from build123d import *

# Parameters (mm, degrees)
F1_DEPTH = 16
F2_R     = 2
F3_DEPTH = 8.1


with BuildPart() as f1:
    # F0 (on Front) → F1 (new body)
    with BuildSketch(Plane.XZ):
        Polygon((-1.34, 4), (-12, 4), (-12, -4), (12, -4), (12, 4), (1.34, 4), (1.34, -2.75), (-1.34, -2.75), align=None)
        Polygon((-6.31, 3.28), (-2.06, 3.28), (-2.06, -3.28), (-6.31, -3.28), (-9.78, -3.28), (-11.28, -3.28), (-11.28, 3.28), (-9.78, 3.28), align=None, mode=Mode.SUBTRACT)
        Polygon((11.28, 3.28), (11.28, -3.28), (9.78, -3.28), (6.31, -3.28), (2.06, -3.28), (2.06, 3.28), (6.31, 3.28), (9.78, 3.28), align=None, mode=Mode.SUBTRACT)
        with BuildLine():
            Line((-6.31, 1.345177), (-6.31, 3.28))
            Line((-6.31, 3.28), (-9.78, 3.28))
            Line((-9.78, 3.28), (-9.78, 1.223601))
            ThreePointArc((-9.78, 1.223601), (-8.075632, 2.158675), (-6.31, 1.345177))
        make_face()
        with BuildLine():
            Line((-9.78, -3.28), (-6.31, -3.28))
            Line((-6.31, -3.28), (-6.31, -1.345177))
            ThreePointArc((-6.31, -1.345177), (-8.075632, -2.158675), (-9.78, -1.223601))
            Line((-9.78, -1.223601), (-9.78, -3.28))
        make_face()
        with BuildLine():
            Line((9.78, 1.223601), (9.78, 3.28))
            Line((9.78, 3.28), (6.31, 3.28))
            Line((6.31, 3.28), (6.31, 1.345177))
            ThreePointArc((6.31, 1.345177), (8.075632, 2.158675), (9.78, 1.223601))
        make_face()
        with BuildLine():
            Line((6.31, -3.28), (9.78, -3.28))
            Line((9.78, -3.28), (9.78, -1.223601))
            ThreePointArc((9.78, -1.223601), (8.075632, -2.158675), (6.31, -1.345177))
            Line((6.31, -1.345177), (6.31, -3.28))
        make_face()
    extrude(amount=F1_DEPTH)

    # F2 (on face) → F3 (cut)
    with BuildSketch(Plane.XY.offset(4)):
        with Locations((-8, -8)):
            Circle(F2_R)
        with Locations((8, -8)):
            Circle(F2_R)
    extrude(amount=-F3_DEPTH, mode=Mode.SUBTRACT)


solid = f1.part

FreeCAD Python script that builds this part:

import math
import FreeCAD as App
import Part
import Sketcher
from FreeCAD import Vector

doc = App.newDocument("Part")
body = doc.addObject("PartDesign::Body", "Body")

# Sketch on XZ plane
sketch1 = body.newObject("Sketcher::SketchObject", "Sketch")
sketch1.AttachmentSupport = (doc.getObject("XZ_Plane"), [""])
sketch1.MapMode = "FlatFace"
sketch1.addGeometry(Part.LineSegment(Vector(-1.34, 4, 0), Vector(-12, 4, 0)), False)
sketch1.addGeometry(Part.LineSegment(Vector(-12, 4, 0), Vector(-12, -4, 0)), False)
sketch1.addGeometry(Part.LineSegment(Vector(-12, -4, 0), Vector(12, -4, 0)), False)
sketch1.addGeometry(Part.LineSegment(Vector(12, -4, 0), Vector(12, 4, 0)), False)
sketch1.addGeometry(Part.LineSegment(Vector(12, 4, 0), Vector(1.34, 4, 0)), False)
sketch1.addGeometry(Part.LineSegment(Vector(1.34, 4, 0), Vector(1.34, -2.75, 0)), False)
sketch1.addGeometry(Part.LineSegment(Vector(1.34, -2.75, 0), Vector(-1.34, -2.75, 0)), False)
sketch1.addGeometry(Part.LineSegment(Vector(-1.34, -2.75, 0), Vector(-1.34, 4, 0)), False)
sketch1.addGeometry(Part.LineSegment(Vector(-11.28, 3.28, 0), Vector(-9.78, 3.28, 0)), False)
sketch1.addGeometry(Part.LineSegment(Vector(-9.78, 3.28, 0), Vector(-9.78, 1.223601, 0)), False)
sketch1.addGeometry(Part.ArcOfCircle(Part.Circle(Vector(-8, -0.000001, 0), Vector(0, 0, 1), 2.160001), math.radians(38.518514), math.radians(145.49471)), False)
sketch1.addGeometry(Part.LineSegment(Vector(-6.31, 1.345177, 0), Vector(-6.31, 3.28, 0)), False)
sketch1.addGeometry(Part.LineSegment(Vector(-6.31, 3.28, 0), Vector(-2.06, 3.28, 0)), False)
sketch1.addGeometry(Part.LineSegment(Vector(-2.06, 3.28, 0), Vector(-2.06, -3.28, 0)), False)
sketch1.addGeometry(Part.LineSegment(Vector(-2.06, -3.28, 0), Vector(-6.31, -3.28, 0)), False)
sketch1.addGeometry(Part.LineSegment(Vector(-6.31, -3.28, 0), Vector(-6.31, -1.345177, 0)), False)
sketch1.addGeometry(Part.ArcOfCircle(Part.Circle(Vector(-8, 0.000001, 0), Vector(0, 0, 1), 2.160001), math.radians(-145.49471), math.radians(-38.518514)), False)
sketch1.addGeometry(Part.LineSegment(Vector(-9.78, -1.223601, 0), Vector(-9.78, -3.28, 0)), False)
sketch1.addGeometry(Part.LineSegment(Vector(-9.78, -3.28, 0), Vector(-11.28, -3.28, 0)), False)
sketch1.addGeometry(Part.LineSegment(Vector(-11.28, -3.28, 0), Vector(-11.28, 3.28, 0)), False)
sketch1.addGeometry(Part.LineSegment(Vector(2.06, 3.28, 0), Vector(6.31, 3.28, 0)), False)
sketch1.addGeometry(Part.LineSegment(Vector(6.31, 3.28, 0), Vector(6.31, 1.345177, 0)), False)
sketch1.addGeometry(Part.ArcOfCircle(Part.Circle(Vector(8, -0.000001, 0), Vector(0, 0, 1), 2.160001), math.radians(34.50529), math.radians(141.481486)), False)
sketch1.addGeometry(Part.LineSegment(Vector(9.78, 1.223601, 0), Vector(9.78, 3.28, 0)), False)
sketch1.addGeometry(Part.LineSegment(Vector(9.78, 3.28, 0), Vector(11.28, 3.28, 0)), False)
sketch1.addGeometry(Part.LineSegment(Vector(11.28, 3.28, 0), Vector(11.28, -3.28, 0)), False)
sketch1.addGeometry(Part.LineSegment(Vector(11.28, -3.28, 0), Vector(9.78, -3.28, 0)), False)
sketch1.addGeometry(Part.LineSegment(Vector(9.78, -3.28, 0), Vector(9.78, -1.223601, 0)), False)
sketch1.addGeometry(Part.ArcOfCircle(Part.Circle(Vector(8, 0.000001, 0), Vector(0, 0, 1), 2.160001), math.radians(-141.481486), math.radians(-34.50529)), False)
sketch1.addGeometry(Part.LineSegment(Vector(6.31, -1.345177, 0), Vector(6.31, -3.28, 0)), False)
sketch1.addGeometry(Part.LineSegment(Vector(6.31, -3.28, 0), Vector(2.06, -3.28, 0)), False)
sketch1.addGeometry(Part.LineSegment(Vector(2.06, -3.28, 0), Vector(2.06, 3.28, 0)), False)
sketch1.addConstraint(Sketcher.Constraint("Coincident", 0, 2, 1, 1))
sketch1.addConstraint(Sketcher.Constraint("Coincident", 1, 2, 2, 1))
sketch1.addConstraint(Sketcher.Constraint("Coincident", 2, 2, 3, 1))
sketch1.addConstraint(Sketcher.Constraint("Coincident", 3, 2, 4, 1))
sketch1.addConstraint(Sketcher.Constraint("Coincident", 4, 2, 5, 1))
sketch1.addConstraint(Sketcher.Constraint("Coincident", 5, 2, 6, 1))
sketch1.addConstraint(Sketcher.Constraint("Coincident", 6, 2, 7, 1))
sketch1.addConstraint(Sketcher.Constraint("Coincident", 7, 2, 0, 1))
sketch1.addConstraint(Sketcher.Constraint("Coincident", 8, 2, 9, 1))
sketch1.addConstraint(Sketcher.Constraint("Coincident", 9, 2, 10, 2))
sketch1.addConstraint(Sketcher.Constraint("Coincident", 10, 1, 11, 1))
sketch1.addConstraint(Sketcher.Constraint("Coincident", 11, 2, 12, 1))
sketch1.addConstraint(Sketcher.Constraint("Coincident", 12, 2, 13, 1))
sketch1.addConstraint(Sketcher.Constraint("Coincident", 13, 2, 14, 1))
sketch1.addConstraint(Sketcher.Constraint("Coincident", 14, 2, 15, 1))
sketch1.addConstraint(Sketcher.Constraint("Coincident", 15, 2, 16, 2))
sketch1.addConstraint(Sketcher.Constraint("Coincident", 16, 1, 17, 1))
sketch1.addConstraint(Sketcher.Constraint("Coincident", 17, 2, 18, 1))
sketch1.addConstraint(Sketcher.Constraint("Coincident", 18, 2, 19, 1))
sketch1.addConstraint(Sketcher.Constraint("Coincident", 19, 2, 8, 1))
sketch1.addConstraint(Sketcher.Constraint("Coincident", 20, 2, 21, 1))
sketch1.addConstraint(Sketcher.Constraint("Coincident", 21, 2, 22, 2))
sketch1.addConstraint(Sketcher.Constraint("Coincident", 22, 1, 23, 1))
sketch1.addConstraint(Sketcher.Constraint("Coincident", 23, 2, 24, 1))
sketch1.addConstraint(Sketcher.Constraint("Coincident", 24, 2, 25, 1))
sketch1.addConstraint(Sketcher.Constraint("Coincident", 25, 2, 26, 1))
sketch1.addConstraint(Sketcher.Constraint("Coincident", 26, 2, 27, 1))
sketch1.addConstraint(Sketcher.Constraint("Coincident", 27, 2, 28, 2))
sketch1.addConstraint(Sketcher.Constraint("Coincident", 28, 1, 29, 1))
sketch1.addConstraint(Sketcher.Constraint("Coincident", 29, 2, 30, 1))
sketch1.addConstraint(Sketcher.Constraint("Coincident", 30, 2, 31, 1))
sketch1.addConstraint(Sketcher.Constraint("Coincident", 31, 2, 20, 1))
sketch1.addConstraint(Sketcher.Constraint("Horizontal", 0))
sketch1.addConstraint(Sketcher.Constraint("Vertical", 1))
sketch1.addConstraint(Sketcher.Constraint("Horizontal", 2))
sketch1.addConstraint(Sketcher.Constraint("Vertical", 3))
sketch1.addConstraint(Sketcher.Constraint("Horizontal", 4))
sketch1.addConstraint(Sketcher.Constraint("Vertical", 5))
sketch1.addConstraint(Sketcher.Constraint("Horizontal", 6))
sketch1.addConstraint(Sketcher.Constraint("Vertical", 7))
sketch1.addConstraint(Sketcher.Constraint("Horizontal", 8))
sketch1.addConstraint(Sketcher.Constraint("Vertical", 9))
sketch1.addConstraint(Sketcher.Constraint("Vertical", 11))
sketch1.addConstraint(Sketcher.Constraint("Horizontal", 12))
sketch1.addConstraint(Sketcher.Constraint("Vertical", 13))
sketch1.addConstraint(Sketcher.Constraint("Horizontal", 14))
sketch1.addConstraint(Sketcher.Constraint("Vertical", 15))
sketch1.addConstraint(Sketcher.Constraint("Vertical", 17))
sketch1.addConstraint(Sketcher.Constraint("Horizontal", 18))
sketch1.addConstraint(Sketcher.Constraint("Vertical", 19))
sketch1.addConstraint(Sketcher.Constraint("Horizontal", 20))
sketch1.addConstraint(Sketcher.Constraint("Vertical", 21))
sketch1.addConstraint(Sketcher.Constraint("Vertical", 23))
sketch1.addConstraint(Sketcher.Constraint("Horizontal", 24))
sketch1.addConstraint(Sketcher.Constraint("Vertical", 25))
sketch1.addConstraint(Sketcher.Constraint("Horizontal", 26))
sketch1.addConstraint(Sketcher.Constraint("Vertical", 27))
sketch1.addConstraint(Sketcher.Constraint("Vertical", 29))
sketch1.addConstraint(Sketcher.Constraint("Horizontal", 30))
sketch1.addConstraint(Sketcher.Constraint("Vertical", 31))
sketch1.addConstraint(Sketcher.Constraint("Coincident", 16, 3, 10, 3))
sketch1.addConstraint(Sketcher.Constraint("Coincident", 28, 3, 22, 3))
sketch1.addConstraint(Sketcher.Constraint("Equal", 10, 16))
sketch1.addConstraint(Sketcher.Constraint("Equal", 16, 22))
sketch1.addConstraint(Sketcher.Constraint("Equal", 22, 28))
sketch1.addConstraint(Sketcher.Constraint("Symmetric", 10, 3, 22, 3, -1, 1))
sketch1.addConstraint(Sketcher.Constraint("Symmetric", 0, 2, 2, 2, -1, 1))
sketch1.addConstraint(Sketcher.Constraint("Symmetric", 14, 2, 20, 2, -1, 1))
sketch1.addConstraint(Sketcher.Constraint("Symmetric", 17, 2, 23, 2, -1, 1))
sketch1.addConstraint(Sketcher.Constraint("Symmetric", 19, 2, 25, 2, -1, 1))
sketch1.addConstraint(Sketcher.Constraint("Symmetric", 11, 2, 29, 2, -1, 1))
sketch1.addConstraint(Sketcher.Constraint("Symmetric", 4, 2, 7, 2, -2))
sketch1.addConstraint(Sketcher.Constraint("Symmetric", 11, 2, 20, 2, -2))
sketch1.addConstraint(Sketcher.Constraint("Symmetric", 9, 2, 22, 1, -2))
sketch1.addConstraint(Sketcher.Constraint("Symmetric", 17, 2, 26, 2, -2))
sketch1.addConstraint(Sketcher.Constraint("Horizontal", 8, 2, 11, 2))
sketch1.addConstraint(Sketcher.Constraint("Equal", 14, 20))
sketch1.addConstraint(Sketcher.Constraint("DistanceX", 2, 1, 2, 2, 24.0))
sketch1.addConstraint(Sketcher.Constraint("DistanceY", 1, 2, 1, 1, 8.0))
sketch1.addConstraint(Sketcher.Constraint("Radius", 10, 2.160001))
sketch1.addConstraint(Sketcher.Constraint("DistanceX", 8, 1, 8, 2, 1.5))
sketch1.addConstraint(Sketcher.Constraint("DistanceX", 10, 3, -1, 1, 8.0))
sketch1.addConstraint(Sketcher.Constraint("DistanceX", 0, 2, 0, 1, 10.66))
sketch1.addConstraint(Sketcher.Constraint("DistanceX", 12, 1, 12, 2, 4.25))
sketch1.addConstraint(Sketcher.Constraint("DistanceY", 5, 2, 5, 1, 6.75))
sketch1.addConstraint(Sketcher.Constraint("DistanceY", 13, 2, 13, 1, 6.56))
sketch1.addConstraint(Sketcher.Constraint("DistanceX", 12, 2, 4, 2, 3.4))
sketch1.addConstraint(Sketcher.Constraint("DistanceX", 8, 2, -1, 1, 9.78))
pad1 = body.newObject("PartDesign::Pad", "Pad")
pad1.Profile = sketch1
pad1.Length = 16

# Sketch on XY plane
sketch2 = body.newObject("Sketcher::SketchObject", "Sketch001")
sketch2.AttachmentSupport = (doc.getObject("XY_Plane"), [""])
sketch2.MapMode = "FlatFace"
sketch2.AttachmentOffset = App.Placement(Vector(0, 0, 4), App.Rotation())
sketch2.addGeometry(Part.Circle(Vector(-8, -8, 0), Vector(0, 0, 1), 2), False)
sketch2.addGeometry(Part.Circle(Vector(8, -8, 0), Vector(0, 0, 1), 2), False)
sketch2.addConstraint(Sketcher.Constraint("Equal", 0, 1))
sketch2.addConstraint(Sketcher.Constraint("Symmetric", 0, 3, 1, 3, -2))
sketch2.addConstraint(Sketcher.Constraint("Diameter", 0, 4.0))
sketch2.addConstraint(Sketcher.Constraint("DistanceX", 0, 3, -1, 1, 8.0))
sketch2.addConstraint(Sketcher.Constraint("DistanceY", 0, 3, -1, 1, 8.0))
pocket1 = body.newObject("PartDesign::Pocket", "Pocket")
pocket1.Profile = sketch2
pocket1.Length = 8.1

doc.recompute()
